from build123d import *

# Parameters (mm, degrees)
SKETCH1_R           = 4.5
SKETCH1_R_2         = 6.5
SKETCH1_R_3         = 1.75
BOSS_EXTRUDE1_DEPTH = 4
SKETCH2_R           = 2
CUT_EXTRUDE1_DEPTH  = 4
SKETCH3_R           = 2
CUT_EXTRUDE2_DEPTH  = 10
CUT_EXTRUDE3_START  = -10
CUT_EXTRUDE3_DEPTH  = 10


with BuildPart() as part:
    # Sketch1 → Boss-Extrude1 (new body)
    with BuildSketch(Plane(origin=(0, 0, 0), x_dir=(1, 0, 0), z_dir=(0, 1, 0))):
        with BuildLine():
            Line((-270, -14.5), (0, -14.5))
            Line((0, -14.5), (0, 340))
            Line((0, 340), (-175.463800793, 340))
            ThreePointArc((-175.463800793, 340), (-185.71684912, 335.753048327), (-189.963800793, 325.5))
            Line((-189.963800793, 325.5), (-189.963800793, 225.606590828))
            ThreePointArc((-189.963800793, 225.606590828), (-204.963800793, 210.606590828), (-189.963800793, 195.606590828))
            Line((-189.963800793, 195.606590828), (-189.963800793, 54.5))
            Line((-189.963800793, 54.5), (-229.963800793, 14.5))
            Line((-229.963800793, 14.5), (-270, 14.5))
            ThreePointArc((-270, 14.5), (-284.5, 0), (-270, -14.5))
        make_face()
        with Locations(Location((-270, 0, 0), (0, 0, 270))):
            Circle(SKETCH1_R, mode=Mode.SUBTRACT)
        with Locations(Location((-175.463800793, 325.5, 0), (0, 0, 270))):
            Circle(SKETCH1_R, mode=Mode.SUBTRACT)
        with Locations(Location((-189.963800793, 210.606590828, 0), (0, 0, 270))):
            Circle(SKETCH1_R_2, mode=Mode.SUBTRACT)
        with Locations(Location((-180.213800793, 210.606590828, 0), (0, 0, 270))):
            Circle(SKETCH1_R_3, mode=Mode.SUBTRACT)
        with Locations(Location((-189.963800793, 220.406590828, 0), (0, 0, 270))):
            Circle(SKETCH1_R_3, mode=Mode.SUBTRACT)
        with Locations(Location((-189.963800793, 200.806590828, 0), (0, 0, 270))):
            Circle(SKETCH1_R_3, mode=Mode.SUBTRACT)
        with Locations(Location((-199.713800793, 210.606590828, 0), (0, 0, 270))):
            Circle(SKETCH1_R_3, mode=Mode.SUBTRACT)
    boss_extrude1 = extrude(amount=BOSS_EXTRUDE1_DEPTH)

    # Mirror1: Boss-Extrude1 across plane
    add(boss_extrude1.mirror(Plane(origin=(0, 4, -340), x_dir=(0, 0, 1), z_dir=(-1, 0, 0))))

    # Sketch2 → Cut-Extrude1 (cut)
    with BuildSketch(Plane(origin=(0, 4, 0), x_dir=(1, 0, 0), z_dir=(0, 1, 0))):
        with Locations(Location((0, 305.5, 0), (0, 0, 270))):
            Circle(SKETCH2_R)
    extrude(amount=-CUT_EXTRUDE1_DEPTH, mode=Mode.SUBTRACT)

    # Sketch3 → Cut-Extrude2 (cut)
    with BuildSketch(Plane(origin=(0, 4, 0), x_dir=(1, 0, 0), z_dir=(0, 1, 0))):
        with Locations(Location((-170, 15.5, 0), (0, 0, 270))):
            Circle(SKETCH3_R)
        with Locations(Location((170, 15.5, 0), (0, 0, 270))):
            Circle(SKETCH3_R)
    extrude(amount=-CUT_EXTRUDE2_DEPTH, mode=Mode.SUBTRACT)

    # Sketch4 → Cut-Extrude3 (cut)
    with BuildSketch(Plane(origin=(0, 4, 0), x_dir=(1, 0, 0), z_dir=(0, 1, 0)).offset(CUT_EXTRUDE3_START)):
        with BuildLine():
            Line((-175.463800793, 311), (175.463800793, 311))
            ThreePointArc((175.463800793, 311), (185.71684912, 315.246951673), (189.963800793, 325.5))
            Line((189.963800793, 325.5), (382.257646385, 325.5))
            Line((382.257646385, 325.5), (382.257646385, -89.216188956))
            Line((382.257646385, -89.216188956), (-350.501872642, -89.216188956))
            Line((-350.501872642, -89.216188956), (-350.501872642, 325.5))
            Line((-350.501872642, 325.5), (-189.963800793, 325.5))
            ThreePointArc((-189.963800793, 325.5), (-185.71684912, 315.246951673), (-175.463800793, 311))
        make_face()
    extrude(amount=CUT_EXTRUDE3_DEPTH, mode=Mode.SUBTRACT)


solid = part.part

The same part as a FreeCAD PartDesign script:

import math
import FreeCAD as App
import Part
import Sketcher

V = App.Vector
Q = App.Units.Quantity

doc = App.newDocument("Part")
params = doc.addObject("Spreadsheet::Sheet", "Params")
for row, (alias, value) in enumerate([
    ("sketch1_diameter", "9 mm"),
    ("sketch1_diameter2", "13 mm"),
    ("sketch1_radius", "15 mm"),
    ("sketch1_diameter3", "3.5 mm"),
    ("sketch1_radius2", "14.5 mm"),
    ("pad1_length", "4 mm"),
    ("sketch2_diameter", "4 mm"),
    ("pocket1_length", "4 mm"),
    ("sketch3_diameter", "4 mm"),
    ("pocket2_length", "10 mm"),
    ("sketch4_radius", "14.5 mm"),
    ("pocket3_length", "10 mm"),
], start=1):
    params.set(f"A{row}", alias)
    params.set(f"B{row}", "=" + value)
    params.setAlias(f"B{row}", alias)

body = doc.addObject("PartDesign::Body", "Body")

# Sketch on XZ plane
sketch1 = body.newObject("Sketcher::SketchObject", "Sketch")
sketch1.AttachmentSupport = (doc.getObject("XZ_Plane"), [""])
sketch1.MapMode = "FlatFace"
sketch1.addGeometry(Part.LineSegment(V(-270, 14.5, 0), V(0, 14.5, 0)), False)
sketch1.addGeometry(Part.LineSegment(V(0, 14.5, 0), V(0, -340, 0)), False)
sketch1.addGeometry(Part.LineSegment(V(0, -340, 0), V(-175.463801, -340, 0)), False)
sketch1.addGeometry(Part.ArcOfCircle(Part.Circle(V(-175.463801, -325.5, 0), V(0, 0, 1), 14.5), math.radians(-180), math.radians(-90)), False)
sketch1.addGeometry(Part.LineSegment(V(-189.963801, -325.5, 0), V(-189.963801, -225.606591, 0)), False)
sketch1.addGeometry(Part.ArcOfCircle(Part.Circle(V(-189.963801, -210.606591, 0), V(0, 0, 1), 15), math.radians(90), math.radians(270)), False)
sketch1.addGeometry(Part.LineSegment(V(-189.963801, -195.606591, 0), V(-189.963801, -54.5, 0)), False)
sketch1.addGeometry(Part.LineSegment(V(-189.963801, -54.5, 0), V(-229.963801, -14.5, 0)), False)
sketch1.addGeometry(Part.LineSegment(V(-229.963801, -14.5, 0), V(-270, -14.5, 0)), False)
sketch1.addGeometry(Part.ArcOfCircle(Part.Circle(V(-270, 0, 0), V(0, 0, 1), 14.5), math.radians(90), math.radians(270)), False)
sketch1.addGeometry(Part.Circle(V(-270, 0, 0), V(0, 0, 1), 4.5), False)
sketch1.addGeometry(Part.Circle(V(-199.713801, -210.606591, 0), V(0, 0, 1), 1.75), False)
sketch1.addGeometry(Part.Circle(V(-189.963801, -200.806591, 0), V(0, 0, 1), 1.75), False)
sketch1.addGeometry(Part.Circle(V(-189.963801, -210.606591, 0), V(0, 0, 1), 6.5), False)
sketch1.addGeometry(Part.Circle(V(-189.963801, -220.406591, 0), V(0, 0, 1), 1.75), False)
sketch1.addGeometry(Part.Circle(V(-180.213801, -210.606591, 0), V(0, 0, 1), 1.75), False)
sketch1.addGeometry(Part.Circle(V(-175.463801, -325.5, 0), V(0, 0, 1), 4.5), False)
sketch1.addConstraint(Sketcher.Constraint("Coincident", 0, 2, 1, 1))
sketch1.addConstraint(Sketcher.Constraint("Coincident", 1, 2, 2, 1))
sketch1.addConstraint(Sketcher.Constraint("Tangent", 2, 2, 3, 2))
sketch1.addConstraint(Sketcher.Constraint("Tangent", 3, 1, 4, 1))
sketch1.addConstraint(Sketcher.Constraint("Coincident", 4, 2, 5, 2))
sketch1.addConstraint(Sketcher.Constraint("Coincident", 5, 1, 6, 1))
sketch1.addConstraint(Sketcher.Constraint("Coincident", 6, 2, 7, 1))
sketch1.addConstraint(Sketcher.Constraint("Coincident", 7, 2, 8, 1))
sketch1.addConstraint(Sketcher.Constraint("Tangent", 8, 2, 9, 2))
sketch1.addConstraint(Sketcher.Constraint("Tangent", 9, 1, 0, 1))
sketch1.addConstraint(Sketcher.Constraint("Horizontal", 0))
sketch1.addConstraint(Sketcher.Constraint("Vertical", 1))
sketch1.addConstraint(Sketcher.Constraint("Horizontal", 2))
sketch1.addConstraint(Sketcher.Constraint("Vertical", 4))
sketch1.addConstraint(Sketcher.Constraint("Vertical", 6))
sketch1.addConstraint(Sketcher.Constraint("Horizontal", 8))
sketch1.addConstraint(Sketcher.Constraint("Coincident", 10, 3, 9, 3))
sketch1.addConstraint(Sketcher.Constraint("Coincident", 13, 3, 5, 3))
sketch1.addConstraint(Sketcher.Constraint("Coincident", 16, 3, 3, 3))
sketch1.addConstraint(Sketcher.Constraint("Equal", 3, 9))
sketch1.addConstraint(Sketcher.Constraint("Equal", 11, 12))
sketch1.addConstraint(Sketcher.Constraint("Equal", 12, 14))
sketch1.addConstraint(Sketcher.Constraint("Equal", 14, 15))
sketch1.addConstraint(Sketcher.Constraint("Equal", 10, 16))
sketch1.addConstraint(Sketcher.Constraint("PointOnObject", 9, 3, -1))
sketch1.addConstraint(Sketcher.Constraint("PointOnObject", 0, 2, -2))
sketch1.addConstraint(Sketcher.Constraint("Horizontal", 5, 3, 11, 3))
sketch1.addConstraint(Sketcher.Constraint("Horizontal", 13, 3, 15, 3))
sketch1.addConstraint(Sketcher.Constraint("Vertical", 5, 3, 12, 3))
sketch1.addConstraint(Sketcher.Constraint("Vertical", 13, 3, 14, 3))
sketch1.addConstraint(Sketcher.Constraint("Vertical", 14, 3, 3, 1))
sketch1.addConstraint(Sketcher.Constraint("Vertical", 4, 2, 5, 1))
sketch1.addConstraint(Sketcher.Constraint("Diameter", 10, Q("9 mm")))
sketch1.addConstraint(Sketcher.Constraint("Diameter", 13, Q("13 mm")))
sketch1.addConstraint(Sketcher.Constraint("Radius", 5, Q("15 mm")))
sketch1.addConstraint(Sketcher.Constraint("Diameter", 11, Q("3.5 mm")))
sketch1.addConstraint(Sketcher.Constraint("Radius", 3, Q("14.5 mm")))
sketch1.addConstraint(Sketcher.Constraint("DistanceX", 0, 1, 0, 2, Q("270 mm")))
sketch1.addConstraint(Sketcher.Constraint("Angle", 7, Q("135 deg")))
sketch1.addConstraint(Sketcher.Constraint("DistanceY", 1, 2, 1, 1, Q("354.5 mm")))
sketch1.addConstraint(Sketcher.Constraint("DistanceX", 7, 2, 6, 2, Q("40 mm")))
sketch1.addConstraint(Sketcher.Constraint("DistanceY", 5, 3, 12, 3, Q("9.8 mm")))
sketch1.addConstraint(Sketcher.Constraint("DistanceY", 14, 3, 5, 3, Q("9.8 mm")))
sketch1.addConstraint(Sketcher.Constraint("DistanceX", 11, 3, 15, 3, Q("19.5 mm")))
sketch1.addConstraint(Sketcher.Constraint("DistanceX", 11, 3, 5, 3, Q("9.75 mm")))
sketch1.addConstraint(Sketcher.Constraint("DistanceX", 2, 2, 2, 1, Q("175.463801 mm")))
sketch1.addConstraint(Sketcher.Constraint("DistanceY", 4, 1, 4, 2, Q("99.893409 mm")))
sketch1.setExpression("Constraints[32]", "Params.sketch1_diameter")
sketch1.setExpression("Constraints[33]", "Params.sketch1_diameter2")
sketch1.setExpression("Constraints[34]", "Params.sketch1_radius")
sketch1.setExpression("Constraints[35]", "Params.sketch1_diameter3")
sketch1.setExpression("Constraints[36]", "Params.sketch1_radius2")
pad1 = body.newObject("PartDesign::Pad", "Pad")
pad1.Profile = sketch1
pad1.setExpression("Length", "Params.pad1_length")
pad1.Reversed = True
doc.recompute()

mirrored = body.newObject("PartDesign::Mirrored", "Mirrored")
mirrored.Originals = [pad1]
mirrored.MirrorPlane = (doc.getObject("YZ_Plane"), [""])
body.Tip = mirrored

# Sketch on XZ plane
sketch2 = body.newObject("Sketcher::SketchObject", "Sketch001")
sketch2.AttachmentSupport = (doc.getObject("XZ_Plane"), [""])
sketch2.MapMode = "FlatFace"
sketch2.AttachmentOffset = App.Placement(V(0, 0, -4), App.Rotation())
sketch2.addGeometry(Part.Circle(V(0, -305.5, 0), V(0, 0, 1), 2), False)
sketch2.addConstraint(Sketcher.Constraint("PointOnObject", 0, 3, -2))
sketch2.addConstraint(Sketcher.Constraint("Diameter", 0, Q("4 mm")))
sketch2.addConstraint(Sketcher.Constraint("DistanceY", 0, 3, -1, 1, Q("305.5 mm")))
sketch2.setExpression("Constraints[1]", "Params.sketch2_diameter")
pocket1 = body.newObject("PartDesign::Pocket", "Pocket")
pocket1.Profile = sketch2
pocket1.setExpression("Length", "Params.pocket1_length")
pocket1.Reversed = True

# Sketch on XZ plane
sketch3 = body.newObject("Sketcher::SketchObject", "Sketch002")
sketch3.AttachmentSupport = (doc.getObject("XZ_Plane"), [""])
sketch3.MapMode = "FlatFace"
sketch3.AttachmentOffset = App.Placement(V(0, 0, -4), App.Rotation())
sketch3.addGeometry(Part.Circle(V(-170, -15.5, 0), V(0, 0, 1), 2), False)
sketch3.addGeometry(Part.Circle(V(170, -15.5, 0), V(0, 0, 1), 2), False)
sketch3.addConstraint(Sketcher.Constraint("Equal", 0, 1))
sketch3.addConstraint(Sketcher.Constraint("Symmetric", 0, 3, 1, 3, -2))
sketch3.addConstraint(Sketcher.Constraint("Diameter", 0, Q("4 mm")))
sketch3.addConstraint(Sketcher.Constraint("DistanceX", 0, 3, -1, 1, Q("170 mm")))
sketch3.addConstraint(Sketcher.Constraint("DistanceY", 0, 3, -1, 1, Q("15.5 mm")))
sketch3.setExpression("Constraints[2]", "Params.sketch3_diameter")
pocket2 = body.newObject("PartDesign::Pocket", "Pocket001")
pocket2.Profile = sketch3
pocket2.setExpression("Length", "Params.pocket2_length")
pocket2.Reversed = True

# Sketch on XZ plane
sketch4 = body.newObject("Sketcher::SketchObject", "Sketch003")
sketch4.AttachmentSupport = (doc.getObject("XZ_Plane"), [""])
sketch4.MapMode = "FlatFace"
sketch4.AttachmentOffset = App.Placement(V(0, 0, 6), App.Rotation())
sketch4.addGeometry(Part.LineSegment(V(175.463801, -311, 0), V(-175.463801, -311, 0)), False)
sketch4.addGeometry(Part.ArcOfCircle(Part.Circle(V(-175.463801, -325.5, 0), V(0, 0, 1), 14.5), math.radians(90), math.radians(180)), False)
sketch4.addGeometry(Part.LineSegment(V(-189.963801, -325.5, 0), V(-350.501873, -325.5, 0)), False)
sketch4.addGeometry(Part.LineSegment(V(-350.501873, -325.5, 0), V(-350.501873, 89.216189, 0)), False)
sketch4.addGeometry(Part.LineSegment(V(-350.501873, 89.216189, 0), V(382.257646, 89.216189, 0)), False)
sketch4.addGeometry(Part.LineSegment(V(382.257646, 89.216189, 0), V(382.257646, -325.5, 0)), False)
sketch4.addGeometry(Part.LineSegment(V(382.257646, -325.5, 0), V(189.963801, -325.5, 0)), False)
sketch4.addGeometry(Part.ArcOfCircle(Part.Circle(V(175.463801, -325.5, 0), V(0, 0, 1), 14.5), math.radians(0), math.radians(90)), False)
sketch4.addConstraint(Sketcher.Constraint("Tangent", 0, 2, 1, 1))
sketch4.addConstraint(Sketcher.Constraint("Coincident", 1, 2, 2, 1))
sketch4.addConstraint(Sketcher.Constraint("Coincident", 2, 2, 3, 1))
sketch4.addConstraint(Sketcher.Constraint("Coincident", 3, 2, 4, 1))
sketch4.addConstraint(Sketcher.Constraint("Coincident", 4, 2, 5, 1))
sketch4.addConstraint(Sketcher.Constraint("Coincident", 5, 2, 6, 1))
sketch4.addConstraint(Sketcher.Constraint("Coincident", 6, 2, 7, 1))
sketch4.addConstraint(Sketcher.Constraint("Tangent", 7, 2, 0, 1))
sketch4.addConstraint(Sketcher.Constraint("Horizontal", 0))
sketch4.addConstraint(Sketcher.Constraint("Horizontal", 2))
sketch4.addConstraint(Sketcher.Constraint("Vertical", 3))
sketch4.addConstraint(Sketcher.Constraint("Horizontal", 4))
sketch4.addConstraint(Sketcher.Constraint("Vertical", 5))
sketch4.addConstraint(Sketcher.Constraint("Horizontal", 6))
sketch4.addConstraint(Sketcher.Constraint("Equal", 1, 7))
sketch4.addConstraint(Sketcher.Constraint("Symmetric", 1, 2, 6, 2, -2))
sketch4.addConstraint(Sketcher.Constraint("Horizontal", 7, 3, 1, 2))
sketch4.addConstraint(Sketcher.Constraint("Radius", 1, Q("14.5 mm")))
sketch4.addConstraint(Sketcher.Constraint("DistanceY", 0, 2, -1, 1, Q("311 mm")))
sketch4.addConstraint(Sketcher.Constraint("DistanceX", 0, 2, 0, 1, Q("350.927602 mm")))
sketch4.addConstraint(Sketcher.Constraint("DistanceX", 2, 2, 2, 1, Q("160.538072 mm")))
sketch4.addConstraint(Sketcher.Constraint("DistanceX", 4, 1, 4, 2, Q("732.759519 mm")))
sketch4.addConstraint(Sketcher.Constraint("DistanceY", 3, 1, 3, 2, Q("414.716189 mm")))
sketch4.setExpression("Constraints[17]", "Params.sketch4_radius")
pocket3 = body.newObject("PartDesign::Pocket", "Pocket002")
pocket3.Profile = sketch4
pocket3.setExpression("Length", "Params.pocket3_length")

doc.recompute()
